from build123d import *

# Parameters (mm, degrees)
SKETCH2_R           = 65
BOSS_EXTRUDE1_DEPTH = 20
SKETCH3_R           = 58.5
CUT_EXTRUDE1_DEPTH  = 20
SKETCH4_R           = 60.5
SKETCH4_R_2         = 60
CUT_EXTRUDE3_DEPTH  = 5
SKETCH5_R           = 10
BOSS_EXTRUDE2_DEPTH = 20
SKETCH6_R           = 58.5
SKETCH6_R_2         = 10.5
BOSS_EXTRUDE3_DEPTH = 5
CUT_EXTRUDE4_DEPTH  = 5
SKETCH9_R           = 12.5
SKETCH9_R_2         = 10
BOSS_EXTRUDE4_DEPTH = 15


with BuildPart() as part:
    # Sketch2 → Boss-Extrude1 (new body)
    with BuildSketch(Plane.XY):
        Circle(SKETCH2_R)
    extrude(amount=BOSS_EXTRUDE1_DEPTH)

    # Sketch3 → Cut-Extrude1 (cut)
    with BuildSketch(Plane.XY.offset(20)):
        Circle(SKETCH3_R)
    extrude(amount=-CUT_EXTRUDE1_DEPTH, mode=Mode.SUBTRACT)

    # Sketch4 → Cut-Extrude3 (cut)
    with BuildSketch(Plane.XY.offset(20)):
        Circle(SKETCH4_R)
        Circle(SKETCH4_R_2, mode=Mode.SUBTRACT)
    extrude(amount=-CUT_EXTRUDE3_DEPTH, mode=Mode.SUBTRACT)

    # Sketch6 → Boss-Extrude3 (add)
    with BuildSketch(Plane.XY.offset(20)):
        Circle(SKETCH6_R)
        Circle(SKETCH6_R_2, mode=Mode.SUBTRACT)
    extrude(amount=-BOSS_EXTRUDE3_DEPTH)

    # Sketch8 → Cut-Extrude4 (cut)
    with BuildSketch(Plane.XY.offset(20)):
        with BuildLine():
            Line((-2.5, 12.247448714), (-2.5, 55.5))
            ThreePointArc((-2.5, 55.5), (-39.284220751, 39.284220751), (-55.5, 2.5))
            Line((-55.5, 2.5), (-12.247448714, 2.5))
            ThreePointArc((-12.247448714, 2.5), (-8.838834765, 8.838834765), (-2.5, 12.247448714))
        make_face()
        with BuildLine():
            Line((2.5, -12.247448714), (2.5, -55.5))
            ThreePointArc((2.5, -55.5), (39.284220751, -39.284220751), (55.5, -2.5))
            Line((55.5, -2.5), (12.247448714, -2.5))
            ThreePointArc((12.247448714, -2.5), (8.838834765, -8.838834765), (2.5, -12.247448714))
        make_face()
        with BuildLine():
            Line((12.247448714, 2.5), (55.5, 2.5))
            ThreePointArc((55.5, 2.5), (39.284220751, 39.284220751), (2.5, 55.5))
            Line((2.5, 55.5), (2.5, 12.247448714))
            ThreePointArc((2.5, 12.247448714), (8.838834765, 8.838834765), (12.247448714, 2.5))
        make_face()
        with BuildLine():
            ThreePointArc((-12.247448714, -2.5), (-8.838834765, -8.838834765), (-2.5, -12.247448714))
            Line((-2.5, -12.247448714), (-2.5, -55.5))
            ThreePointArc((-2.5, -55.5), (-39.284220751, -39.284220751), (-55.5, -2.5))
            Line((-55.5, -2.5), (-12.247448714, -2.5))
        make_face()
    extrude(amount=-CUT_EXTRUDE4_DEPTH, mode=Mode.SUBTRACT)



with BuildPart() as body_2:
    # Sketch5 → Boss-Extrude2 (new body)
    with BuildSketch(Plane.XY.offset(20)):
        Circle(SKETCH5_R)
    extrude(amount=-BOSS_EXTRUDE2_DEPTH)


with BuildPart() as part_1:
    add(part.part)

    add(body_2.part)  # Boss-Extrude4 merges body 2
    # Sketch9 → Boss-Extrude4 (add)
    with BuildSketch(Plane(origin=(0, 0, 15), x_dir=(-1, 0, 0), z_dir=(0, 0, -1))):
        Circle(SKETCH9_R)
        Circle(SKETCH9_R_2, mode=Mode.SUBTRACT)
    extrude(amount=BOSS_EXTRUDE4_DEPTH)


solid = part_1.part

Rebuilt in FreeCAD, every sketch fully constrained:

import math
import FreeCAD as App
import Part
import Sketcher
from FreeCAD import Vector

doc = App.newDocument("Part")
body = doc.addObject("PartDesign::Body", "Body")

# Sketch on XY plane
sketch1 = doc.addObject("Sketcher::SketchObject", "Sketch")
body.addObject(sketch1)
sketch1.AttachmentSupport = (doc.XY_Plane, [""])
sketch1.MapMode = "FlatFace"
sketch1.addGeometry(Part.Circle(Vector(0, 0, 0), Vector(0, 0, 1), 65), False)
sketch1.addConstraint([
    Sketcher.Constraint("Coincident", 0, 3, -1, 1),
    Sketcher.Constraint("Diameter", 0, 130.0),
])
pad1 = doc.addObject("PartDesign::Pad", "Pad")
body.addObject(pad1)
pad1.Profile = sketch1
pad1.Length = 20

# Sketch on XY plane
sketch2 = doc.addObject("Sketcher::SketchObject", "Sketch001")
body.addObject(sketch2)
sketch2.AttachmentSupport = (doc.XY_Plane, [""])
sketch2.MapMode = "FlatFace"
sketch2.AttachmentOffset = App.Placement(Vector(0, 0, 20), App.Rotation())
sketch2.addGeometry(Part.Circle(Vector(0, 0, 0), Vector(0, 0, 1), 58), False)
sketch2.addConstraint([
    Sketcher.Constraint("Coincident", 0, 3, -1, 1),
    Sketcher.Constraint("Diameter", 0, 117.0),
])
pocket1 = doc.addObject("PartDesign::Pocket", "Pocket")
body.addObject(pocket1)
pocket1.Profile = sketch2
pocket1.Length = 20

# Sketch on XY plane
sketch3 = doc.addObject("Sketcher::SketchObject", "Sketch002")
body.addObject(sketch3)
sketch3.AttachmentSupport = (doc.XY_Plane, [""])
sketch3.MapMode = "FlatFace"
sketch3.AttachmentOffset = App.Placement(Vector(0, 0, 20), App.Rotation())
sketch3.addGeometry([
    Part.Circle(Vector(0, 0, 0), Vector(0, 0, 1), 60),
    Part.Circle(Vector(0, 0, 0), Vector(0, 0, 1), 60),
], False)
sketch3.addConstraint([
    Sketcher.Constraint("Coincident", 0, 3, -1, 1),
    Sketcher.Constraint("Coincident", 1, 3, -1, 1),
    Sketcher.Constraint("Diameter", 0, 121.0),
    Sketcher.Constraint("Diameter", 1, 120.0),
])
pocket2 = doc.addObject("PartDesign::Pocket", "Pocket001")
body.addObject(pocket2)
pocket2.Profile = sketch3
pocket2.Length = 5

# Sketch on XY plane
sketch4 = doc.addObject("Sketcher::SketchObject", "Sketch003")
body.addObject(sketch4)
sketch4.AttachmentSupport = (doc.XY_Plane, [""])
sketch4.MapMode = "FlatFace"
sketch4.AttachmentOffset = App.Placement(Vector(0, 0, 20), App.Rotation())
sketch4.addGeometry([
    Part.Circle(Vector(0, 0, 0), Vector(0, 0, 1), 58),
    Part.Circle(Vector(0, 0, 0), Vector(0, 0, 1), 10),
], False)
sketch4.addConstraint([
    Sketcher.Constraint("Coincident", 0, 3, -1, 1),
    Sketcher.Constraint("Coincident", 1, 3, -1, 1),
    Sketcher.Constraint("Diameter", 0, 117.0),
    Sketcher.Constraint("Diameter", 1, 21.0),
])
pad2 = doc.addObject("PartDesign::Pad", "Pad001")
body.addObject(pad2)
pad2.Profile = sketch4
pad2.Length = 5
pad2.Reversed = True

# Sketch on XY plane
sketch5 = doc.addObject("Sketcher::SketchObject", "Sketch004")
body.addObject(sketch5)
sketch5.AttachmentSupport = (doc.XY_Plane, [""])
sketch5.MapMode = "FlatFace"
sketch5.AttachmentOffset = App.Placement(Vector(0, 0, 20), App.Rotation())
sketch5.addGeometry([
    Part.LineSegment(Vector(-2, 12, 0), Vector(-2, 56, 0)),  # 0
    Part.ArcOfCircle(Part.Circle(Vector(0, 0, 0), Vector(0, 0, 1), 56), math.radians(93), math.radians(177)),  # 1
    Part.LineSegment(Vector(-56, 2, 0), Vector(-12, 2, 0)),  # 2
    Part.ArcOfCircle(Part.Circle(Vector(0, 0, 0), Vector(0, 0, 1), 12), math.radians(102), math.radians(168)),  # 3
    Part.LineSegment(Vector(2, -12, 0), Vector(2, -56, 0)),  # 4
    Part.ArcOfCircle(Part.Circle(Vector(0, 0, 0), Vector(0, 0, 1), 56), math.radians(-87), math.radians(-3)),  # 5
    Part.LineSegment(Vector(56, -2, 0), Vector(12, -2, 0)),  # 6
    Part.ArcOfCircle(Part.Circle(Vector(0, 0, 0), Vector(0, 0, 1), 12), math.radians(-78), math.radians(-12)),  # 7
    Part.LineSegment(Vector(12, 2, 0), Vector(56, 2, 0)),  # 8
    Part.ArcOfCircle(Part.Circle(Vector(0, 0, 0), Vector(0, 0, 1), 56), math.radians(3), math.radians(87)),  # 9
    Part.LineSegment(Vector(2, 56, 0), Vector(2, 12, 0)),  # 10
    Part.ArcOfCircle(Part.Circle(Vector(0, 0, 0), Vector(0, 0, 1), 12), math.radians(12), math.radians(78)),  # 11
    Part.ArcOfCircle(Part.Circle(Vector(0, 0, 0), Vector(0, 0, 1), 12), math.radians(-168), math.radians(-102)),  # 12
    Part.LineSegment(Vector(-12, -2, 0), Vector(-56, -2, 0)),  # 13
    Part.ArcOfCircle(Part.Circle(Vector(0, 0, 0), Vector(0, 0, 1), 56), math.radians(-177), math.radians(-93)),  # 14
    Part.LineSegment(Vector(-2, -56, 0), Vector(-2, -12, 0)),  # 15
], False)
sketch5.addConstraint([
    Sketcher.Constraint("Coincident", 0, 2, 1, 1),
    Sketcher.Constraint("Coincident", 1, 2, 2, 1),
    Sketcher.Constraint("Coincident", 2, 2, 3, 2),
    Sketcher.Constraint("Coincident", 3, 1, 0, 1),
    Sketcher.Constraint("Coincident", 4, 2, 5, 1),
    Sketcher.Constraint("Coincident", 5, 2, 6, 1),
    Sketcher.Constraint("Coincident", 6, 2, 7, 2),
    Sketcher.Constraint("Coincident", 7, 1, 4, 1),
    Sketcher.Constraint("Coincident", 8, 2, 9, 1),
    Sketcher.Constraint("Coincident", 9, 2, 10, 1),
    Sketcher.Constraint("Coincident", 10, 2, 11, 2),
    Sketcher.Constraint("Coincident", 11, 1, 8, 1),
    Sketcher.Constraint("Coincident", 12, 1, 13, 1),
    Sketcher.Constraint("Coincident", 13, 2, 14, 1),
    Sketcher.Constraint("Coincident", 14, 2, 15, 1),
    Sketcher.Constraint("Coincident", 15, 2, 12, 2),
    Sketcher.Constraint("Vertical", 0),
    Sketcher.Constraint("Horizontal", 2),
    Sketcher.Constraint("Vertical", 4),
    Sketcher.Constraint("Horizontal", 6),
    Sketcher.Constraint("Horizontal", 8),
    Sketcher.Constraint("Vertical", 10),
    Sketcher.Constraint("Horizontal", 13),
    Sketcher.Constraint("Vertical", 15),
    Sketcher.Constraint("Coincident", 1, 3, -1, 1),
    Sketcher.Constraint("Coincident", 3, 3, -1, 1),
    Sketcher.Constraint("Coincident", 5, 3, -1, 1),
    Sketcher.Constraint("Coincident", 7, 3, -1, 1),
    Sketcher.Constraint("Coincident", 9, 3, -1, 1),
    Sketcher.Constraint("Coincident", 11, 3, -1, 1),
    Sketcher.Constraint("Coincident", 12, 3, -1, 1),
    Sketcher.Constraint("Coincident", 14, 3, -1, 1),
    Sketcher.Constraint("Equal", 1, 5),
    Sketcher.Constraint("Equal", 3, 7),
    Sketcher.Constraint("Equal", 5, 9),
    Sketcher.Constraint("Equal", 7, 11),
    Sketcher.Constraint("Equal", 11, 12),
    Sketcher.Constraint("Equal", 9, 14),
    Sketcher.Constraint("Horizontal", 2, 2, 8, 2),
    Sketcher.Constraint("Horizontal", 0, 2, 9, 2),
    Sketcher.Constraint("Horizontal", 6, 2, 12, 1),
    Sketcher.Constraint("Horizontal", 4, 2, 14, 2),
    Sketcher.Constraint("Vertical", 5, 2, 8, 2),
    Sketcher.Constraint("Vertical", 7, 1, 9, 2),
    Sketcher.Constraint("Equal", 13, 0),
    Sketcher.Constraint("Radius", 3, 12.5),
    Sketcher.Constraint("DistanceY", 5, 2, 8, 2, 5.0),
    Sketcher.Constraint("DistanceX", 7, 1, 8, 2, 53.0),
])
pocket3 = doc.addObject("PartDesign::Pocket", "Pocket002")
body.addObject(pocket3)
pocket3.Profile = sketch5
pocket3.Length = 5
body2 = doc.addObject("PartDesign::Body", "Body001")

# Sketch on XY plane
sketch6 = doc.addObject("Sketcher::SketchObject", "Sketch005")
body2.addObject(sketch6)
sketch6.AttachmentSupport = (doc.getObject("XY_Plane001"), [""])
sketch6.MapMode = "FlatFace"
sketch6.AttachmentOffset = App.Placement(Vector(0, 0, 20), App.Rotation())
sketch6.addGeometry(Part.Circle(Vector(0, 0, 0), Vector(0, 0, 1), 10), False)
sketch6.addConstraint([
    Sketcher.Constraint("Coincident", 0, 3, -1, 1),
    Sketcher.Constraint("Diameter", 0, 20.0),
])
pad3 = doc.addObject("PartDesign::Pad", "Pad002")
body2.addObject(pad3)
pad3.Profile = sketch6
pad3.Length = 20
pad3.Reversed = True
body.AllowCompound = True
doc.recompute()

boolean = doc.addObject("PartDesign::Boolean", "Boolean")
body.addObject(boolean)
boolean.Type = "Fuse"
boolean.addObjects([body2])

# Sketch on XY plane
sketch7 = doc.addObject("Sketcher::SketchObject", "Sketch006")
body.addObject(sketch7)
sketch7.AttachmentSupport = (doc.XY_Plane, [""])
sketch7.MapMode = "FlatFace"
sketch7.AttachmentOffset = App.Placement(Vector(0, 0, 15), App.Rotation())
sketch7.addGeometry([
    Part.Circle(Vector(0, 0, 0), Vector(0, 0, 1), 12),
    Part.Circle(Vector(0, 0, 0), Vector(0, 0, 1), 10),
], False)
sketch7.addConstraint([
    Sketcher.Constraint("Coincident", 0, 3, -1, 1),
    Sketcher.Constraint("Coincident", 1, 3, -1, 1),
    Sketcher.Constraint("Diameter", 0, 25.0),
    Sketcher.Constraint("Diameter", 1, 20.0),
])
pad4 = doc.addObject("PartDesign::Pad", "Pad003")
body.addObject(pad4)
pad4.Profile = sketch7
pad4.Length = 15
pad4.Reversed = True

doc.recompute()
